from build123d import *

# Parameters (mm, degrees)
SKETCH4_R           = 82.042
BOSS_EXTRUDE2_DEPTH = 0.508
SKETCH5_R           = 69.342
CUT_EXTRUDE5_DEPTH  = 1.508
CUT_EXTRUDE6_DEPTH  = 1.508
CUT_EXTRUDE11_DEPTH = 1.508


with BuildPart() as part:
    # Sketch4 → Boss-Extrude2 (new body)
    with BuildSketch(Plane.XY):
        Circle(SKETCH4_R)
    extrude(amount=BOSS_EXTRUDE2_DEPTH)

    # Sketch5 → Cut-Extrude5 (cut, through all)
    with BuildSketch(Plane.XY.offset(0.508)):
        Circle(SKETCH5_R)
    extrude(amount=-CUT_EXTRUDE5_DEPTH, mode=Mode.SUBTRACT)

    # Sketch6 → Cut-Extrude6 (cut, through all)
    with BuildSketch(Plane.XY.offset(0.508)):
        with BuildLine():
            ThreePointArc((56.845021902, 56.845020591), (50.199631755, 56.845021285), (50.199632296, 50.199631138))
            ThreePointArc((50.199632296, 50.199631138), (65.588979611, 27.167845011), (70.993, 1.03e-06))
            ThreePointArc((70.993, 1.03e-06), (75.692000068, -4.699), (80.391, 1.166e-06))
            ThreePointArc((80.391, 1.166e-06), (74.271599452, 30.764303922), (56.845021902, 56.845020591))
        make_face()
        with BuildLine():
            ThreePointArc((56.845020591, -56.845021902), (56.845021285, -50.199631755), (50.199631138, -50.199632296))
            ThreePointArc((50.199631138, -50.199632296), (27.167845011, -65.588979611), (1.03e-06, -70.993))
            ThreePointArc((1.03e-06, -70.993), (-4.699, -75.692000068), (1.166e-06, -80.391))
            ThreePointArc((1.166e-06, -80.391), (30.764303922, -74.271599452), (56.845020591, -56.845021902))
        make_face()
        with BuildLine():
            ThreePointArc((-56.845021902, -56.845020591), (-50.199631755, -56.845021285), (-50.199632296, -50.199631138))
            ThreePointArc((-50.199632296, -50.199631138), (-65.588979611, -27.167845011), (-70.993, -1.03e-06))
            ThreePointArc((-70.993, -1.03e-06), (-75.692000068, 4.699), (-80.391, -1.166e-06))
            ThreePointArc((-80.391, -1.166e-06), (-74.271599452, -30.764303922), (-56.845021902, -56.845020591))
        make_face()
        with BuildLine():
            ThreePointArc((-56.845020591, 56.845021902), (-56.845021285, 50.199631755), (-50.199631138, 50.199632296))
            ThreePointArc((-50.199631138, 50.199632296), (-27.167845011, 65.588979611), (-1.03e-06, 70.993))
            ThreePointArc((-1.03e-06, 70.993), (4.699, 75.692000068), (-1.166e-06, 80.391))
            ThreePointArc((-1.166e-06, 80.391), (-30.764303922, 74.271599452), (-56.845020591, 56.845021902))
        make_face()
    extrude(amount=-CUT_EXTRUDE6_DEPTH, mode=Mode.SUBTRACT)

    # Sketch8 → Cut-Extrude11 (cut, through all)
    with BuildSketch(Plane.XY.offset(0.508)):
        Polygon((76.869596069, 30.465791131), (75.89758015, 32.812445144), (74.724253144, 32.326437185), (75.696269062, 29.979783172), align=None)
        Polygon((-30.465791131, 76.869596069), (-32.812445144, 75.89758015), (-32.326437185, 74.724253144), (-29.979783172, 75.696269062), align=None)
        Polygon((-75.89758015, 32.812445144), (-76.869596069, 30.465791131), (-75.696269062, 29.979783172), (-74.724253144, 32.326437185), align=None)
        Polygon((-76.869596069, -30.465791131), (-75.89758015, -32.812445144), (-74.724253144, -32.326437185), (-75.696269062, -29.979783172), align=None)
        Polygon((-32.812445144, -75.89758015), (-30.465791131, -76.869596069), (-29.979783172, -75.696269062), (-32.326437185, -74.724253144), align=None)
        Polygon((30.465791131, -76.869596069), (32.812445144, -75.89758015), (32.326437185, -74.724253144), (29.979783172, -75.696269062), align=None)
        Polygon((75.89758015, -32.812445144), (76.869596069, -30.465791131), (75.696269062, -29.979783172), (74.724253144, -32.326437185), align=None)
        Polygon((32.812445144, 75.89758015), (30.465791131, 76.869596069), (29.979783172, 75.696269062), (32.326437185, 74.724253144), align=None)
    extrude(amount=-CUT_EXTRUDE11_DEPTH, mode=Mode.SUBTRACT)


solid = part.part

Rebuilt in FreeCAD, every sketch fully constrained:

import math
import FreeCAD as App
import Part
import Sketcher

V = App.Vector
Q = App.Units.Quantity

doc = App.newDocument("Part")
params = doc.addObject("Spreadsheet::Sheet", "Params")
for row, (alias, value) in enumerate([
    ("sketch1_diameter", "6.46 in"),
    ("pad1_length", "0.02 in"),
    ("sketch2_diameter", "5.46 in"),
    ("sketch3_radius", "0.185 in"),
    ("sketch3_radius2", "2.795 in"),
    ("sketch4_length", "0.1 in"),
    ("sketch4_length2", "0.05 in"),
], start=1):
    params.set(f"A{row}", alias)
    params.set(f"B{row}", "=" + value)
    params.setAlias(f"B{row}", alias)

body = doc.addObject("PartDesign::Body", "Body")

# Sketch on XY plane
sketch1 = doc.addObject("Sketcher::SketchObject", "Sketch")
body.addObject(sketch1)
sketch1.AttachmentSupport = (doc.XY_Plane, [""])
sketch1.MapMode = "FlatFace"
sketch1.addGeometry(Part.Circle(V(0, 0, 0), V(0, 0, 1), 82), False)
sketch1.addConstraint([
    Sketcher.Constraint("Coincident", 0, 3, -1, 1),
    Sketcher.Constraint("Diameter", 0, Q("6.46 in")),
])
sketch1.setExpression("Constraints[1]", "Params.sketch1_diameter")
pad1 = doc.addObject("PartDesign::Pad", "Pad")
body.addObject(pad1)
pad1.Profile = sketch1
pad1.setExpression("Length", "Params.pad1_length")

# Sketch on XY plane
sketch2 = doc.addObject("Sketcher::SketchObject", "Sketch001")
body.addObject(sketch2)
sketch2.AttachmentSupport = (doc.XY_Plane, [""])
sketch2.MapMode = "FlatFace"
sketch2.AttachmentOffset = App.Placement(V(0, 0, 0.02 * 25.4), App.Rotation())
sketch2.addGeometry(Part.Circle(V(0, 0, 0), V(0, 0, 1), 69), False)
sketch2.addConstraint([
    Sketcher.Constraint("Coincident", 0, 3, -1, 1),
    Sketcher.Constraint("Diameter", 0, Q("5.46 in")),
])
sketch2.setExpression("Constraints[1]", "Params.sketch2_diameter")
pocket1 = doc.addObject("PartDesign::Pocket", "Pocket")
body.addObject(pocket1)
pocket1.Profile = sketch2
pocket1.Type = "ThroughAll"

# Sketch on XY plane
sketch3 = doc.addObject("Sketcher::SketchObject", "Sketch002")
body.addObject(sketch3)
sketch3.AttachmentSupport = (doc.XY_Plane, [""])
sketch3.MapMode = "FlatFace"
sketch3.AttachmentOffset = App.Placement(V(0, 0, 0.02 * 25.4), App.Rotation())
sketch3.addGeometry([
    Part.ArcOfCircle(Part.Circle(V(53.5, 53.5, 0), V(0, 0, 1), 4.7), math.radians(45), math.radians(225)),  # 0
    Part.ArcOfCircle(Part.Circle(V(0, 0, 0), V(0, 0, 1), 71), math.radians(0), math.radians(45)),  # 1
    Part.ArcOfCircle(Part.Circle(V(75.7, 0, 0), V(0, 0, 1), 4.7), math.radians(180), math.radians(360)),  # 2
    Part.ArcOfCircle(Part.Circle(V(0, 0, 0), V(0, 0, 1), 80.4), math.radians(0), math.radians(45)),  # 3
    Part.ArcOfCircle(Part.Circle(V(53.5, -53.5, 0), V(0, 0, 1), 4.7), math.radians(-45), math.radians(135)),  # 4
    Part.ArcOfCircle(Part.Circle(V(0, 0, 0), V(0, 0, 1), 71), math.radians(-90), math.radians(-45)),  # 5
    Part.ArcOfCircle(Part.Circle(V(0, -75.7, 0), V(0, 0, 1), 4.7), math.radians(90), math.radians(270)),  # 6
    Part.ArcOfCircle(Part.Circle(V(0, 0, 0), V(0, 0, 1), 80.4), math.radians(-90), math.radians(-45)),  # 7
    Part.ArcOfCircle(Part.Circle(V(-53.5, -53.5, 0), V(0, 0, 1), 4.7), math.radians(-135), math.radians(45)),  # 8
    Part.ArcOfCircle(Part.Circle(V(0, 0, 0), V(0, 0, 1), 71), math.radians(-180), math.radians(-135)),  # 9
    Part.ArcOfCircle(Part.Circle(V(-75.7, 0, 0), V(0, 0, 1), 4.7), math.radians(0), math.radians(180)),  # 10
    Part.ArcOfCircle(Part.Circle(V(0, 0, 0), V(0, 0, 1), 80.4), math.radians(-180), math.radians(-135)),  # 11
    Part.ArcOfCircle(Part.Circle(V(-53.5, 53.5, 0), V(0, 0, 1), 4.7), math.radians(135), math.radians(315)),  # 12
    Part.ArcOfCircle(Part.Circle(V(0, 0, 0), V(0, 0, 1), 71), math.radians(90), math.radians(135)),  # 13
    Part.ArcOfCircle(Part.Circle(V(0, 75.7, 0), V(0, 0, 1), 4.7), math.radians(-90), math.radians(90)),  # 14
    Part.ArcOfCircle(Part.Circle(V(0, 0, 0), V(0, 0, 1), 80.4), math.radians(90), math.radians(135)),  # 15
], False)
sketch3.addConstraint([
    Sketcher.Constraint("Tangent", 0, 2, 1, 2),
    Sketcher.Constraint("Tangent", 1, 1, 2, 1),
    Sketcher.Constraint("Tangent", 2, 2, 3, 1),
    Sketcher.Constraint("Tangent", 3, 2, 0, 1),
    Sketcher.Constraint("Tangent", 4, 2, 5, 2),
    Sketcher.Constraint("Tangent", 5, 1, 6, 1),
    Sketcher.Constraint("Tangent", 6, 2, 7, 1),
    Sketcher.Constraint("Tangent", 7, 2, 4, 1),
    Sketcher.Constraint("Tangent", 8, 2, 9, 2),
    Sketcher.Constraint("Tangent", 9, 1, 10, 1),
    Sketcher.Constraint("Tangent", 10, 2, 11, 1),
    Sketcher.Constraint("Tangent", 11, 2, 8, 1),
    Sketcher.Constraint("Tangent", 12, 2, 13, 2),
    Sketcher.Constraint("Tangent", 13, 1, 14, 1),
    Sketcher.Constraint("Tangent", 14, 2, 15, 1),
    Sketcher.Constraint("Tangent", 15, 2, 12, 1),
    Sketcher.Constraint("Coincident", 1, 3, -1, 1),
    Sketcher.Constraint("Coincident", 3, 3, -1, 1),
    Sketcher.Constraint("Coincident", 5, 3, -1, 1),
    Sketcher.Constraint("Coincident", 7, 3, -1, 1),
    Sketcher.Constraint("Coincident", 9, 3, -1, 1),
    Sketcher.Constraint("Coincident", 11, 3, -1, 1),
    Sketcher.Constraint("Coincident", 13, 3, -1, 1),
    Sketcher.Constraint("Coincident", 15, 3, -1, 1),
    Sketcher.Constraint("Equal", 2, 4),
    Sketcher.Constraint("Equal", 1, 5),
    Sketcher.Constraint("Equal", 6, 8),
    Sketcher.Constraint("Equal", 5, 9),
    Sketcher.Constraint("Equal", 10, 12),
    Sketcher.Constraint("Equal", 9, 13),
    Sketcher.Constraint("PointOnObject", 2, 3, -1),
    Sketcher.Constraint("PointOnObject", 6, 3, -2),
    Sketcher.Constraint("PointOnObject", 10, 3, -1),
    Sketcher.Constraint("PointOnObject", 14, 3, -2),
    Sketcher.Constraint("Horizontal", 4, 3, 8, 3),
    Sketcher.Constraint("Horizontal", 0, 3, 12, 3),
    Sketcher.Constraint("Vertical", 0, 3, 4, 3),
    Sketcher.Constraint("Radius", 0, Q("0.185 in")),
    Sketcher.Constraint("Radius", 1, Q("2.795 in")),
    Sketcher.Constraint("DistanceY", -1, 1, 0, 2, 50.199631),
])
sketch3.setExpression("Constraints[37]", "Params.sketch3_radius")
sketch3.setExpression("Constraints[38]", "Params.sketch3_radius2")
pocket2 = doc.addObject("PartDesign::Pocket", "Pocket001")
body.addObject(pocket2)
pocket2.Profile = sketch3
pocket2.Type = "ThroughAll"

# Sketch on XY plane
sketch4 = doc.addObject("Sketcher::SketchObject", "Sketch003")
body.addObject(sketch4)
sketch4.AttachmentSupport = (doc.XY_Plane, [""])
sketch4.MapMode = "FlatFace"
sketch4.AttachmentOffset = App.Placement(V(0, 0, 0.02 * 25.4), App.Rotation())
sketch4.addGeometry([
    Part.LineSegment(V(76.9, 30.5, 0), V(75.9, 32.8, 0)),  # 0
    Part.LineSegment(V(75.9, 32.8, 0), V(74.7, 32.3, 0)),  # 1
    Part.LineSegment(V(74.7, 32.3, 0), V(75.7, 30, 0)),  # 2
    Part.LineSegment(V(75.7, 30, 0), V(76.9, 30.5, 0)),  # 3
    Part.LineSegment(V(-30.5, 76.9, 0), V(-32.8, 75.9, 0)),  # 4
    Part.LineSegment(V(-32.8, 75.9, 0), V(-32.3, 74.7, 0)),  # 5
    Part.LineSegment(V(-32.3, 74.7, 0), V(-30, 75.7, 0)),  # 6
    Part.LineSegment(V(-30, 75.7, 0), V(-30.5, 76.9, 0)),  # 7
    Part.LineSegment(V(-75.9, 32.8, 0), V(-76.9, 30.5, 0)),  # 8
    Part.LineSegment(V(-76.9, 30.5, 0), V(-75.7, 30, 0)),  # 9
    Part.LineSegment(V(-75.7, 30, 0), V(-74.7, 32.3, 0)),  # 10
    Part.LineSegment(V(-74.7, 32.3, 0), V(-75.9, 32.8, 0)),  # 11
    Part.LineSegment(V(-76.9, -30.5, 0), V(-75.9, -32.8, 0)),  # 12
    Part.LineSegment(V(-75.9, -32.8, 0), V(-74.7, -32.3, 0)),  # 13
    Part.LineSegment(V(-74.7, -32.3, 0), V(-75.7, -30, 0)),  # 14
    Part.LineSegment(V(-75.7, -30, 0), V(-76.9, -30.5, 0)),  # 15
    Part.LineSegment(V(-32.8, -75.9, 0), V(-30.5, -76.9, 0)),  # 16
    Part.LineSegment(V(-30.5, -76.9, 0), V(-30, -75.7, 0)),  # 17
    Part.LineSegment(V(-30, -75.7, 0), V(-32.3, -74.7, 0)),  # 18
    Part.LineSegment(V(-32.3, -74.7, 0), V(-32.8, -75.9, 0)),  # 19
    Part.LineSegment(V(30.5, -76.9, 0), V(32.8, -75.9, 0)),  # 20
    Part.LineSegment(V(32.8, -75.9, 0), V(32.3, -74.7, 0)),  # 21
    Part.LineSegment(V(32.3, -74.7, 0), V(30, -75.7, 0)),  # 22
    Part.LineSegment(V(30, -75.7, 0), V(30.5, -76.9, 0)),  # 23
    Part.LineSegment(V(75.9, -32.8, 0), V(76.9, -30.5, 0)),  # 24
    Part.LineSegment(V(76.9, -30.5, 0), V(75.7, -30, 0)),  # 25
    Part.LineSegment(V(75.7, -30, 0), V(74.7, -32.3, 0)),  # 26
    Part.LineSegment(V(74.7, -32.3, 0), V(75.9, -32.8, 0)),  # 27
    Part.LineSegment(V(32.8, 75.9, 0), V(30.5, 76.9, 0)),  # 28
    Part.LineSegment(V(30.5, 76.9, 0), V(30, 75.7, 0)),  # 29
    Part.LineSegment(V(30, 75.7, 0), V(32.3, 74.7, 0)),  # 30
    Part.LineSegment(V(32.3, 74.7, 0), V(32.8, 75.9, 0)),  # 31
], False)
sketch4.addConstraint([
    Sketcher.Constraint("Coincident", 0, 2, 1, 1),
    Sketcher.Constraint("Coincident", 1, 2, 2, 1),
    Sketcher.Constraint("Coincident", 2, 2, 3, 1),
    Sketcher.Constraint("Coincident", 3, 2, 0, 1),
    Sketcher.Constraint("Coincident", 4, 2, 5, 1),
    Sketcher.Constraint("Coincident", 5, 2, 6, 1),
    Sketcher.Constraint("Coincident", 6, 2, 7, 1),
    Sketcher.Constraint("Coincident", 7, 2, 4, 1),
    Sketcher.Constraint("Coincident", 8, 2, 9, 1),
    Sketcher.Constraint("Coincident", 9, 2, 10, 1),
    Sketcher.Constraint("Coincident", 10, 2, 11, 1),
    Sketcher.Constraint("Coincident", 11, 2, 8, 1),
    Sketcher.Constraint("Coincident", 12, 2, 13, 1),
    Sketcher.Constraint("Coincident", 13, 2, 14, 1),
    Sketcher.Constraint("Coincident", 14, 2, 15, 1),
    Sketcher.Constraint("Coincident", 15, 2, 12, 1),
    Sketcher.Constraint("Coincident", 16, 2, 17, 1),
    Sketcher.Constraint("Coincident", 17, 2, 18, 1),
    Sketcher.Constraint("Coincident", 18, 2, 19, 1),
    Sketcher.Constraint("Coincident", 19, 2, 16, 1),
    Sketcher.Constraint("Coincident", 20, 2, 21, 1),
    Sketcher.Constraint("Coincident", 21, 2, 22, 1),
    Sketcher.Constraint("Coincident", 22, 2, 23, 1),
    Sketcher.Constraint("Coincident", 23, 2, 20, 1),
    Sketcher.Constraint("Coincident", 24, 2, 25, 1),
    Sketcher.Constraint("Coincident", 25, 2, 26, 1),
    Sketcher.Constraint("Coincident", 26, 2, 27, 1),
    Sketcher.Constraint("Coincident", 27, 2, 24, 1),
    Sketcher.Constraint("Coincident", 28, 2, 29, 1),
    Sketcher.Constraint("Coincident", 29, 2, 30, 1),
    Sketcher.Constraint("Coincident", 30, 2, 31, 1),
    Sketcher.Constraint("Coincident", 31, 2, 28, 1),
    Sketcher.Constraint("Symmetric", 0, 2, 12, 2, -1, 1),
    Sketcher.Constraint("Symmetric", 1, 2, 13, 2, -1, 1),
    Sketcher.Constraint("Symmetric", 2, 2, 14, 2, -1, 1),
    Sketcher.Constraint("Symmetric", 3, 2, 15, 2, -1, 1),
    Sketcher.Constraint("Symmetric", 4, 2, 20, 2, -1, 1),
    Sketcher.Constraint("Symmetric", 5, 2, 21, 2, -1, 1),
    Sketcher.Constraint("Symmetric", 6, 2, 22, 2, -1, 1),
    Sketcher.Constraint("Symmetric", 7, 2, 23, 2, -1, 1),
    Sketcher.Constraint("Symmetric", 8, 2, 24, 2, -1, 1),
    Sketcher.Constraint("Symmetric", 9, 2, 25, 2, -1, 1),
    Sketcher.Constraint("Symmetric", 10, 2, 26, 2, -1, 1),
    Sketcher.Constraint("Symmetric", 11, 2, 27, 2, -1, 1),
    Sketcher.Constraint("Symmetric", 16, 2, 28, 2, -1, 1),
    Sketcher.Constraint("Symmetric", 17, 2, 29, 2, -1, 1),
    Sketcher.Constraint("Symmetric", 18, 2, 30, 2, -1, 1),
    Sketcher.Constraint("Symmetric", 19, 2, 31, 2, -1, 1),
    Sketcher.Constraint("Symmetric", 3, 2, 8, 2, -2),
    Sketcher.Constraint("Symmetric", 2, 2, 9, 2, -2),
    Sketcher.Constraint("Symmetric", 1, 2, 10, 2, -2),
    Sketcher.Constraint("Symmetric", 0, 2, 11, 2, -2),
    Sketcher.Constraint("Symmetric", 19, 2, 20, 2, -2),
    Sketcher.Constraint("Symmetric", 18, 2, 21, 2, -2),
    Sketcher.Constraint("Symmetric", 17, 2, 22, 2, -2),
    Sketcher.Constraint("Symmetric", 16, 2, 23, 2, -2),
    Sketcher.Constraint("Perpendicular", 0, 1),
    Sketcher.Constraint("Perpendicular", 1, 2),
    Sketcher.Constraint("Perpendicular", 2, 3),
    Sketcher.Constraint("Parallel", 3, 4),
    Sketcher.Constraint("Perpendicular", 4, 5),
    Sketcher.Constraint("Perpendicular", 5, 6),
    Sketcher.Constraint("Perpendicular", 6, 7),
    Sketcher.Constraint("Equal", 2, 4),
    Sketcher.Constraint("Equal", 3, 5),
    Sketcher.Constraint("Distance", 0, Q("0.1 in")),
    Sketcher.Constraint("Angle", 0, Q("112.5 deg")),
    Sketcher.Constraint("Distance", 1, Q("0.05 in")),
    Sketcher.Constraint("DistanceX", 6, 2, 0, 2, Q("4.1684001 in")),
    Sketcher.Constraint("DistanceY", 20, 2, 2, 2, Q("4.1684001 in")),
    Sketcher.Constraint("DistanceX", -1, 1, 0, 2, 75.89758),
    Sketcher.Constraint("DistanceY", -1, 1, 3, 2, 30.465791),
])
sketch4.setExpression("Constraints[65]", "Params.sketch4_length")
sketch4.setExpression("Constraints[67]", "Params.sketch4_length2")
pocket3 = doc.addObject("PartDesign::Pocket", "Pocket002")
body.addObject(pocket3)
pocket3.Profile = sketch4
pocket3.Type = "ThroughAll"

doc.recompute()
